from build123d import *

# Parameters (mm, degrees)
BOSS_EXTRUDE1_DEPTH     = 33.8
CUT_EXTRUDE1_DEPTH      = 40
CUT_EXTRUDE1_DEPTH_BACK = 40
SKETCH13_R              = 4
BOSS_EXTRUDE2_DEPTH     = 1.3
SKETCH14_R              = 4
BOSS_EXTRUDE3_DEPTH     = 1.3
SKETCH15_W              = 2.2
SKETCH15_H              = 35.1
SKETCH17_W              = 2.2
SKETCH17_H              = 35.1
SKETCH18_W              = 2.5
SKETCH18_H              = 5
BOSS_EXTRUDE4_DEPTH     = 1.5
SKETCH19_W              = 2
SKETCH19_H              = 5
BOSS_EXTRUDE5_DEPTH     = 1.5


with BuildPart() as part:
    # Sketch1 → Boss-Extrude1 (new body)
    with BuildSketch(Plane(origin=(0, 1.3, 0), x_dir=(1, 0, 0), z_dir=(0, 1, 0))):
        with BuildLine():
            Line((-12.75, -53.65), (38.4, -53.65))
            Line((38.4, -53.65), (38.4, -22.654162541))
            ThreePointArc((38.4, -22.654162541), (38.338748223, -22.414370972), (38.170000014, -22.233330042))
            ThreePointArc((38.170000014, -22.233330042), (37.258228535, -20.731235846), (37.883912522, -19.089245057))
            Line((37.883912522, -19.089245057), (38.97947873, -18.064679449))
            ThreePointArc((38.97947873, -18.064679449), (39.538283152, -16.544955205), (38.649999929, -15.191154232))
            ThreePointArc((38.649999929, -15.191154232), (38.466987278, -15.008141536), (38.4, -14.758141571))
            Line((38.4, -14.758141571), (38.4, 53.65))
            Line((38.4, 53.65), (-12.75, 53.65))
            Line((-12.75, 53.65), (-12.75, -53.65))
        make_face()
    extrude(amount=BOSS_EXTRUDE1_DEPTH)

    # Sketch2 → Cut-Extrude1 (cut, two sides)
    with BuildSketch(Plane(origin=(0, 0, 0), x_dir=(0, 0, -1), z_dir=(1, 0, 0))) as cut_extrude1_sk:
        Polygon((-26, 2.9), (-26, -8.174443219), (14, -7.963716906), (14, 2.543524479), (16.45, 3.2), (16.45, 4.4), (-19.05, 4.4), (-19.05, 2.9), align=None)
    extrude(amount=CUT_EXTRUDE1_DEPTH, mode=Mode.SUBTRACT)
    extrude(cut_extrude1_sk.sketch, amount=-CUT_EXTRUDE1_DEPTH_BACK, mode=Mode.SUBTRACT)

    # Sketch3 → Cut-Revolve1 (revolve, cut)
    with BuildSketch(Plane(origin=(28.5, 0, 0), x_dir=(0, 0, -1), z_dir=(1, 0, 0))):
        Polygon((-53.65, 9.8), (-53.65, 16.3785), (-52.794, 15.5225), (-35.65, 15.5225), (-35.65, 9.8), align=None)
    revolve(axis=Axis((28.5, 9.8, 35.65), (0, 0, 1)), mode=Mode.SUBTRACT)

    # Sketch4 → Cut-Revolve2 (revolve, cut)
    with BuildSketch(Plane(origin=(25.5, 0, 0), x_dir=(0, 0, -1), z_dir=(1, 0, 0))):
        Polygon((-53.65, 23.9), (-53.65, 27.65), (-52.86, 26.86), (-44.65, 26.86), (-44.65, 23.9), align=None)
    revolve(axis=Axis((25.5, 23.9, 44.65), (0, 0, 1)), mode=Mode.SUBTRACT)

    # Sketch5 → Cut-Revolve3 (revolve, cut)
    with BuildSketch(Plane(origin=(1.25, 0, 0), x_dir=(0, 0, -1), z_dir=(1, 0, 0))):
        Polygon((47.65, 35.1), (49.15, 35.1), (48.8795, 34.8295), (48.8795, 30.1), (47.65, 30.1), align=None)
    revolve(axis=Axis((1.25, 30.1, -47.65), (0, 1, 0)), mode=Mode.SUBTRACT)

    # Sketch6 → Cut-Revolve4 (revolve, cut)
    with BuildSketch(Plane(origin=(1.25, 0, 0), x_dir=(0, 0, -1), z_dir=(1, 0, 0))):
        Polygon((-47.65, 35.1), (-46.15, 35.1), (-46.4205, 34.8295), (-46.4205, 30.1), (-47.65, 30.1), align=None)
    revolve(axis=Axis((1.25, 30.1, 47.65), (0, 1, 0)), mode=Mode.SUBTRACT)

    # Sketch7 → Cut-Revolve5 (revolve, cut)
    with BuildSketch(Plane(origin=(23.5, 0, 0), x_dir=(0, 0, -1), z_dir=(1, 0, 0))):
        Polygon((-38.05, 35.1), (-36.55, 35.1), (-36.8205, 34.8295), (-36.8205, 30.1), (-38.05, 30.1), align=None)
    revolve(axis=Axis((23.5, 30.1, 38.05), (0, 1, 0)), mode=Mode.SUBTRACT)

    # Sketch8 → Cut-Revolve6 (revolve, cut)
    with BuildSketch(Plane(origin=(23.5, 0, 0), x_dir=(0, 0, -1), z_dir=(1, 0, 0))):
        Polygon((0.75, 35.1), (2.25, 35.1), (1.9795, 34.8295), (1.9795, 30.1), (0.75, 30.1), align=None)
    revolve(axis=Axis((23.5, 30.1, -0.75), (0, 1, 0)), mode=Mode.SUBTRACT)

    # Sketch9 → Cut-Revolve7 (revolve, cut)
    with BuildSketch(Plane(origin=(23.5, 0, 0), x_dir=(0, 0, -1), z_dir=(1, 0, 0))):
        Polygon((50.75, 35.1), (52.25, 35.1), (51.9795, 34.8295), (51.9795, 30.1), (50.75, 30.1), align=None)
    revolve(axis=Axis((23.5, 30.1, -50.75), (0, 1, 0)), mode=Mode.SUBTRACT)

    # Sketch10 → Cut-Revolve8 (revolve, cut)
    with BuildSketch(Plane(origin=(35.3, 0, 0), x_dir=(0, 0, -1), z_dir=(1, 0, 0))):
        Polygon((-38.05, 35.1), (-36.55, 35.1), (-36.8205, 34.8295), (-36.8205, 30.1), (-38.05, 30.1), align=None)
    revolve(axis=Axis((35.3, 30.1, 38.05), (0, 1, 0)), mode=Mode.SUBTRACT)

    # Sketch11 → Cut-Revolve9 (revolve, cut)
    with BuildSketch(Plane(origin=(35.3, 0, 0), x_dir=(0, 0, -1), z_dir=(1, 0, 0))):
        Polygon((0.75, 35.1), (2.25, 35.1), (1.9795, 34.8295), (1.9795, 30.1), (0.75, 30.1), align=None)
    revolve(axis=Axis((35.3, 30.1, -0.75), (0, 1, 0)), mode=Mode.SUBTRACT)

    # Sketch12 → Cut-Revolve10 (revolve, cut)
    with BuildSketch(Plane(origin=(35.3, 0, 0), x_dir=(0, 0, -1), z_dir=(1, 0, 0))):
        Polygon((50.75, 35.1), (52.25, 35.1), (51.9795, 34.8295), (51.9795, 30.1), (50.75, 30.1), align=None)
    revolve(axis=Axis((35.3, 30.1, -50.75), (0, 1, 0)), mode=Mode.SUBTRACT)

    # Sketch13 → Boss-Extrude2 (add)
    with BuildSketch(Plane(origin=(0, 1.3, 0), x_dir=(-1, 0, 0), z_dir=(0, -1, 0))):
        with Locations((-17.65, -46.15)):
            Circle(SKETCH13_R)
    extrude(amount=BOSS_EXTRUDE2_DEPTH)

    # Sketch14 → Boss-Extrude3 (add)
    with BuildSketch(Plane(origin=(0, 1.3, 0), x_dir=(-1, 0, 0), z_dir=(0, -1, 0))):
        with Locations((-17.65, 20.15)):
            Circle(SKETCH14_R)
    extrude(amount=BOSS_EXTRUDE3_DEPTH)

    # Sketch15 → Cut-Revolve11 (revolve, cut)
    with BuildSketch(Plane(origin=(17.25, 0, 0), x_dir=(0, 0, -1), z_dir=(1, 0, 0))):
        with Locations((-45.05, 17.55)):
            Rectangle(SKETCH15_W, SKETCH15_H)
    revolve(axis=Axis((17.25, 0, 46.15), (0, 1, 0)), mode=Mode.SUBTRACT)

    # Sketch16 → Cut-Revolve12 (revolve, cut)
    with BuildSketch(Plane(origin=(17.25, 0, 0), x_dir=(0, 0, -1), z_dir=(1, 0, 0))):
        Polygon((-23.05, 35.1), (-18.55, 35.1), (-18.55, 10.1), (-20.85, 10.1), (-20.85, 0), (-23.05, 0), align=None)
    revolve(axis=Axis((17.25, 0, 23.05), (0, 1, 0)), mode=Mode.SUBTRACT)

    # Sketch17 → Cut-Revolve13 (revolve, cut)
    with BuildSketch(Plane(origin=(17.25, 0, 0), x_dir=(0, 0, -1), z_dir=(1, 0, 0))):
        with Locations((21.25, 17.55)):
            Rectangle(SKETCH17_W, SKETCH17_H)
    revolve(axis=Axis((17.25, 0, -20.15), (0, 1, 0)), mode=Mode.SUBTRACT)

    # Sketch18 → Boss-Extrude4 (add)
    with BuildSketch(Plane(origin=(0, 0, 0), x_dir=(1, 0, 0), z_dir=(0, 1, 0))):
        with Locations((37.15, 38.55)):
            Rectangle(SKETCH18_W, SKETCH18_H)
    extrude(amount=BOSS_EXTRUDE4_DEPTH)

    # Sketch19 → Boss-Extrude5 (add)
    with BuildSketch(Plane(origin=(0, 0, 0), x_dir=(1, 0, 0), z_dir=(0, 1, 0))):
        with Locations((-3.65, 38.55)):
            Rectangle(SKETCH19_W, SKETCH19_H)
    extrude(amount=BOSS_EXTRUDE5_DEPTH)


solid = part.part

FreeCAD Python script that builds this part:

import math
import FreeCAD as App
import Part
import Sketcher

V = App.Vector
Q = App.Units.Quantity


def add_polygon(sketch, points):
    """Adds a closed chain of lines whose ends are joined by coincident constraints."""
    first, n = sketch.GeometryCount, len(points)
    for a, b in zip(points, points[1:] + points[:1]):
        sketch.addGeometry(Part.LineSegment(App.Vector(*a, 0), App.Vector(*b, 0)), False)
    for i in range(n):
        sketch.addConstraint(Sketcher.Constraint("Coincident", first + i, 2, first + (i + 1) % n, 1))

doc = App.newDocument("Part")
body = doc.addObject("PartDesign::Body", "Body")

sketch1 = body.newObject("Sketcher::SketchObject", "Sketch")
sketch1.AttachmentSupport = (doc.getObject("XZ_Plane"), [""])
sketch1.MapMode = "FlatFace"
sketch1.AttachmentOffset = App.Placement(V(0, 0, -1.3), App.Rotation())
sketch1.addGeometry(Part.LineSegment(V(-12.75, 53.65, 0), V(38.4, 53.65, 0)), False)
sketch1.addGeometry(Part.LineSegment(V(38.4, 53.65, 0), V(38.4, 22.65, 0)), False)
sketch1.addGeometry(Part.ArcOfCircle(Part.Circle(V(37.9, 22.65, 0), V(0, 0, 1), 0.5), math.radians(-57), math.radians(0)), False)
sketch1.addGeometry(Part.ArcOfCircle(Part.Circle(V(39.25, 20.55, 0), V(0, 0, 1), 2), math.radians(123), math.radians(227)), False)
sketch1.addGeometry(Part.LineSegment(V(37.88, 19.09, 0), V(38.98, 18.06, 0)), False)
sketch1.addGeometry(Part.ArcOfCircle(Part.Circle(V(37.75, 16.75, 0), V(0, 0, 1), 1.8), math.radians(-60), math.radians(47)), False)
sketch1.addGeometry(Part.ArcOfCircle(Part.Circle(V(38.9, 14.76, 0), V(0, 0, 1), 0.5), math.radians(120), math.radians(180)), False)
sketch1.addGeometry(Part.LineSegment(V(38.4, 14.76, 0), V(38.4, -53.65, 0)), False)
sketch1.addGeometry(Part.LineSegment(V(38.4, -53.65, 0), V(-12.75, -53.65, 0)), False)
sketch1.addGeometry(Part.LineSegment(V(-12.75, -53.65, 0), V(-12.75, 53.65, 0)), False)
sketch1.addConstraint(Sketcher.Constraint("Coincident", 0, 2, 1, 1))
sketch1.addConstraint(Sketcher.Constraint("Tangent", 1, 2, 2, 2))
sketch1.addConstraint(Sketcher.Constraint("Tangent", 2, 1, 3, 1))
sketch1.addConstraint(Sketcher.Constraint("Tangent", 3, 2, 4, 1))
sketch1.addConstraint(Sketcher.Constraint("Tangent", 4, 2, 5, 2))
sketch1.addConstraint(Sketcher.Constraint("Tangent", 5, 1, 6, 1))
sketch1.addConstraint(Sketcher.Constraint("Tangent", 6, 2, 7, 1))
sketch1.addConstraint(Sketcher.Constraint("Coincident", 7, 2, 8, 1))
sketch1.addConstraint(Sketcher.Constraint("Coincident", 8, 2, 9, 1))
sketch1.addConstraint(Sketcher.Constraint("Coincident", 9, 2, 0, 1))
sketch1.addConstraint(Sketcher.Constraint("Horizontal", 0))
sketch1.addConstraint(Sketcher.Constraint("Vertical", 1))
sketch1.addConstraint(Sketcher.Constraint("Vertical", 7))
sketch1.addConstraint(Sketcher.Constraint("Horizontal", 8))
sketch1.addConstraint(Sketcher.Constraint("Vertical", 9))
sketch1.addConstraint(Sketcher.Constraint("Equal", 2, 6))
sketch1.addConstraint(Sketcher.Constraint("Symmetric", 0, 2, 7, 2, -1))
sketch1.addConstraint(Sketcher.Constraint("Radius", 3, Q("2 mm")))
sketch1.addConstraint(Sketcher.Constraint("Radius", 2, Q("0.5 mm")))
sketch1.addConstraint(Sketcher.Constraint("Radius", 5, Q("1.8 mm")))
sketch1.addConstraint(Sketcher.Constraint("DistanceY", 9, 1, 9, 2, Q("107.3 mm")))
sketch1.addConstraint(Sketcher.Constraint("Distance", 4, Q("1.5 mm")))
sketch1.addConstraint(Sketcher.Constraint("DistanceX", 0, 1, 0, 2, Q("51.15 mm")))
sketch1.addConstraint(Sketcher.Constraint("DistanceX", -1, 1, 2, 3, Q("37.9 mm")))
sketch1.addConstraint(Sketcher.Constraint("DistanceX", 5, 3, 3, 3, Q("1.5 mm")))
sketch1.addConstraint(Sketcher.Constraint("DistanceY", 3, 3, 0, 2, Q("33.1 mm")))
sketch1.addConstraint(Sketcher.Constraint("DistanceX", 5, 3, 5, 1, Q("0.9 mm")))
pad1 = body.newObject("PartDesign::Pad", "Pad")
pad1.Profile = sketch1
pad1.Length = 33.8
pad1.Reversed = True

sketch2 = body.newObject("Sketcher::SketchObject", "Sketch001")
sketch2.AttachmentSupport = (doc.getObject("YZ_Plane"), [""])
sketch2.MapMode = "FlatFace"
add_polygon(sketch2, [(2.9, 26), (-8.2, 26), (-8, -14), (2.5, -14), (3.2, -16.4), (4.4, -16.4), (4.4, 19.1), (2.9, 19.1)])
sketch2.addConstraint(Sketcher.Constraint("Horizontal", 0))
sketch2.addConstraint(Sketcher.Constraint("Horizontal", 2))
sketch2.addConstraint(Sketcher.Constraint("Horizontal", 4))
sketch2.addConstraint(Sketcher.Constraint("Vertical", 5))
sketch2.addConstraint(Sketcher.Constraint("Horizontal", 6))
sketch2.addConstraint(Sketcher.Constraint("Vertical", 7))
sketch2.addConstraint(Sketcher.Constraint("Angle", 3, Q("-75 deg")))
sketch2.addConstraint(Sketcher.Constraint("DistanceX", 4, 1, 4, 2, Q("1.2 mm")))
sketch2.addConstraint(Sketcher.Constraint("DistanceX", 6, 2, 6, 1, Q("1.5 mm")))
sketch2.addConstraint(Sketcher.Constraint("DistanceY", 5, 1, 5, 2, Q("35.5 mm")))
sketch2.addConstraint(Sketcher.Constraint("DistanceY", -1, 1, 0, 2, Q("26 mm")))
sketch2.addConstraint(Sketcher.Constraint("DistanceY", 1, 2, -1, 1, Q("14 mm")))
sketch2.addConstraint(Sketcher.Constraint("DistanceY", 7, 1, 7, 2, Q("6.95 mm")))
sketch2.addConstraint(Sketcher.Constraint("DistanceX", -1, 1, 3, 2, Q("3.2 mm")))
sketch2.addConstraint(Sketcher.Constraint("DistanceX", 2, 1, 2, 2, Q("10.507241 mm")))
sketch2.addConstraint(Sketcher.Constraint("DistanceX", 0, 2, 0, 1, Q("11.074443 mm")))
pocket1 = body.newObject("PartDesign::Pocket", "Pocket")
pocket1.Profile = sketch2
pocket1.Type = "ThroughAll"
pocket1.Midplane = True

sketch3 = body.newObject("Sketcher::SketchObject", "Sketch002")
sketch3.AttachmentSupport = (doc.getObject("YZ_Plane"), [""])
sketch3.MapMode = "FlatFace"
sketch3.AttachmentOffset = App.Placement(V(0, 0, 28.5), App.Rotation())
add_polygon(sketch3, [(16.4, 53.6), (9.8, 53.6), (9.8, 35.6), (15.5, 35.6), (15.5, 52.8)])
sketch3.addGeometry(Part.LineSegment(V(9.8, 35.6, 0), V(9.8, 53.6, 0)), True)
sketch3.addConstraint(Sketcher.Constraint("Horizontal", 0))
sketch3.addConstraint(Sketcher.Constraint("Vertical", 1))
sketch3.addConstraint(Sketcher.Constraint("Horizontal", 2))
sketch3.addConstraint(Sketcher.Constraint("Vertical", 3))
sketch3.addConstraint(Sketcher.Constraint("Vertical", 5))
sketch3.addConstraint(Sketcher.Constraint("Coincident", 5, 1, 1, 2))
sketch3.addConstraint(Sketcher.Constraint("Horizontal", 4, 2, 5, 2))
sketch3.addConstraint(Sketcher.Constraint("DistanceY", 1, 2, 1, 1, Q("18 mm")))
sketch3.addConstraint(Sketcher.Constraint("Angle", 4, Q("45 deg")))
sketch3.addConstraint(Sketcher.Constraint("DistanceX", -1, 1, 0, 2, Q("9.8 mm")))
sketch3.addConstraint(Sketcher.Constraint("DistanceY", 3, 1, 3, 2, Q("17.144 mm")))
sketch3.addConstraint(Sketcher.Constraint("DistanceY", -1, 1, 0, 2, Q("53.65 mm")))
sketch3.addConstraint(Sketcher.Constraint("DistanceX", 0, 2, 0, 1, Q("6.5785 mm")))
groove = body.newObject("PartDesign::Groove", "Groove")
groove.Profile = sketch3
groove.ReferenceAxis = (sketch3, ["Axis0"])
groove.Angle = 360

sketch4 = body.newObject("Sketcher::SketchObject", "Sketch003")
sketch4.AttachmentSupport = (doc.getObject("YZ_Plane"), [""])
sketch4.MapMode = "FlatFace"
sketch4.AttachmentOffset = App.Placement(V(0, 0, 25.5), App.Rotation())
add_polygon(sketch4, [(27.6, 53.6), (23.9, 53.6), (23.9, 44.6), (26.9, 44.6), (26.9, 52.9)])
sketch4.addGeometry(Part.LineSegment(V(23.9, 44.6, 0), V(23.9, 53.6, 0)), True)
sketch4.addConstraint(Sketcher.Constraint("Horizontal", 0))
sketch4.addConstraint(Sketcher.Constraint("Vertical", 1))
sketch4.addConstraint(Sketcher.Constraint("Horizontal", 2))
sketch4.addConstraint(Sketcher.Constraint("Vertical", 3))
sketch4.addConstraint(Sketcher.Constraint("Vertical", 5))
sketch4.addConstraint(Sketcher.Constraint("Coincident", 5, 1, 1, 2))
sketch4.addConstraint(Sketcher.Constraint("Horizontal", 4, 2, 5, 2))
sketch4.addConstraint(Sketcher.Constraint("DistanceY", 1, 2, 1, 1, Q("9 mm")))
sketch4.addConstraint(Sketcher.Constraint("Angle", 4, Q("45 deg")))
sketch4.addConstraint(Sketcher.Constraint("DistanceX", 0, 2, 0, 1, Q("3.75 mm")))
sketch4.addConstraint(Sketcher.Constraint("DistanceX", 2, 1, 2, 2, Q("2.96 mm")))
sketch4.addConstraint(Sketcher.Constraint("DistanceX", -1, 1, 0, 2, Q("23.9 mm")))
sketch4.addConstraint(Sketcher.Constraint("DistanceY", -1, 1, 0, 2, Q("53.65 mm")))
groove2 = body.newObject("PartDesign::Groove", "Groove001")
groove2.Profile = sketch4
groove2.ReferenceAxis = (sketch4, ["Axis0"])
groove2.Angle = 360

sketch5 = body.newObject("Sketcher::SketchObject", "Sketch004")
sketch5.AttachmentSupport = (doc.getObject("YZ_Plane"), [""])
sketch5.MapMode = "FlatFace"
sketch5.AttachmentOffset = App.Placement(V(0, 0, 1.25), App.Rotation())
add_polygon(sketch5, [(35.1, -49.15), (35.1, -47.65), (30.1, -47.65), (30.1, -48.88), (34.83, -48.88)])
sketch5.addGeometry(Part.LineSegment(V(30.1, -47.65, 0), V(35.1, -47.65, 0)), True)
sketch5.addConstraint(Sketcher.Constraint("Vertical", 0))
sketch5.addConstraint(Sketcher.Constraint("Horizontal", 1))
sketch5.addConstraint(Sketcher.Constraint("Vertical", 2))
sketch5.addConstraint(Sketcher.Constraint("Horizontal", 3))
sketch5.addConstraint(Sketcher.Constraint("Horizontal", 5))
sketch5.addConstraint(Sketcher.Constraint("Coincident", 5, 1, 1, 2))
sketch5.addConstraint(Sketcher.Constraint("Vertical", 4, 2, 5, 2))
sketch5.addConstraint(Sketcher.Constraint("DistanceX", 1, 2, 1, 1, Q("5 mm")))
sketch5.addConstraint(Sketcher.Constraint("Angle", 4, Q("-45 deg")))
sketch5.addConstraint(Sketcher.Constraint("DistanceY", 0, 1, 0, 2, Q("1.5 mm")))
sketch5.addConstraint(Sketcher.Constraint("DistanceX", -1, 1, 0, 2, Q("35.1 mm")))
sketch5.addConstraint(Sketcher.Constraint("DistanceY", 0, 2, -1, 1, Q("47.65 mm")))
sketch5.addConstraint(Sketcher.Constraint("DistanceX", 3, 1, 3, 2, Q("4.7295 mm")))
groove3 = body.newObject("PartDesign::Groove", "Groove002")
groove3.Profile = sketch5
groove3.ReferenceAxis = (sketch5, ["Axis0"])
groove3.Angle = 360

sketch6 = body.newObject("Sketcher::SketchObject", "Sketch005")
sketch6.AttachmentSupport = (doc.getObject("YZ_Plane"), [""])
sketch6.MapMode = "FlatFace"
sketch6.AttachmentOffset = App.Placement(V(0, 0, 1.25), App.Rotation())
add_polygon(sketch6, [(35.1, 46.15), (35.1, 47.65), (30.1, 47.65), (30.1, 46.42), (34.83, 46.42)])
sketch6.addGeometry(Part.LineSegment(V(30.1, 47.65, 0), V(35.1, 47.65, 0)), True)
sketch6.addConstraint(Sketcher.Constraint("Vertical", 0))
sketch6.addConstraint(Sketcher.Constraint("Horizontal", 1))
sketch6.addConstraint(Sketcher.Constraint("Vertical", 2))
sketch6.addConstraint(Sketcher.Constraint("Horizontal", 3))
sketch6.addConstraint(Sketcher.Constraint("Horizontal", 5))
sketch6.addConstraint(Sketcher.Constraint("Coincident", 5, 1, 1, 2))
sketch6.addConstraint(Sketcher.Constraint("Vertical", 4, 2, 5, 2))
sketch6.addConstraint(Sketcher.Constraint("DistanceX", 1, 2, 1, 1, Q("5 mm")))
sketch6.addConstraint(Sketcher.Constraint("Angle", 4, Q("-45 deg")))
sketch6.addConstraint(Sketcher.Constraint("DistanceY", 0, 1, 0, 2, Q("1.5 mm")))
sketch6.addConstraint(Sketcher.Constraint("DistanceX", -1, 1, 0, 2, Q("35.1 mm")))
sketch6.addConstraint(Sketcher.Constraint("DistanceY", -1, 1, 0, 2, Q("47.65 mm")))
sketch6.addConstraint(Sketcher.Constraint("DistanceX", 3, 1, 3, 2, Q("4.7295 mm")))
groove4 = body.newObject("PartDesign::Groove", "Groove003")
groove4.Profile = sketch6
groove4.ReferenceAxis = (sketch6, ["Axis0"])
groove4.Angle = 360

sketch7 = body.newObject("Sketcher::SketchObject", "Sketch006")
sketch7.AttachmentSupport = (doc.getObject("YZ_Plane"), [""])
sketch7.MapMode = "FlatFace"
sketch7.AttachmentOffset = App.Placement(V(0, 0, 23.5), App.Rotation())
add_polygon(sketch7, [(35.1, 36.55), (35.1, 38.05), (30.1, 38.05), (30.1, 36.82), (34.83, 36.82)])
sketch7.addGeometry(Part.LineSegment(V(30.1, 38.05, 0), V(35.1, 38.05, 0)), True)
sketch7.addConstraint(Sketcher.Constraint("Vertical", 0))
sketch7.addConstraint(Sketcher.Constraint("Horizontal", 1))
sketch7.addConstraint(Sketcher.Constraint("Vertical", 2))
sketch7.addConstraint(Sketcher.Constraint("Horizontal", 3))
sketch7.addConstraint(Sketcher.Constraint("Horizontal", 5))
sketch7.addConstraint(Sketcher.Constraint("Coincident", 5, 1, 1, 2))
sketch7.addConstraint(Sketcher.Constraint("Vertical", 4, 2, 5, 2))
sketch7.addConstraint(Sketcher.Constraint("DistanceX", 1, 2, 1, 1, Q("5 mm")))
sketch7.addConstraint(Sketcher.Constraint("Angle", 4, Q("-45 deg")))
sketch7.addConstraint(Sketcher.Constraint("DistanceY", 0, 1, 0, 2, Q("1.5 mm")))
sketch7.addConstraint(Sketcher.Constraint("DistanceX", -1, 1, 0, 2, Q("35.1 mm")))
sketch7.addConstraint(Sketcher.Constraint("DistanceY", -1, 1, 0, 2, Q("38.05 mm")))
sketch7.addConstraint(Sketcher.Constraint("DistanceX", 3, 1, 3, 2, Q("4.7295 mm")))
groove5 = body.newObject("PartDesign::Groove", "Groove004")
groove5.Profile = sketch7
groove5.ReferenceAxis = (sketch7, ["Axis0"])
groove5.Angle = 360

sketch8 = body.newObject("Sketcher::SketchObject", "Sketch007")
sketch8.AttachmentSupport = (doc.getObject("YZ_Plane"), [""])
sketch8.MapMode = "FlatFace"
sketch8.AttachmentOffset = App.Placement(V(0, 0, 23.5), App.Rotation())
add_polygon(sketch8, [(35.1, -2.25), (35.1, -0.75), (30.1, -0.75), (30.1, -1.98), (34.83, -1.98)])
sketch8.addGeometry(Part.LineSegment(V(30.1, -0.75, 0), V(35.1, -0.75, 0)), True)
sketch8.addConstraint(Sketcher.Constraint("Vertical", 0))
sketch8.addConstraint(Sketcher.Constraint("Horizontal", 1))
sketch8.addConstraint(Sketcher.Constraint("Vertical", 2))
sketch8.addConstraint(Sketcher.Constraint("Horizontal", 3))
sketch8.addConstraint(Sketcher.Constraint("Horizontal", 5))
sketch8.addConstraint(Sketcher.Constraint("Coincident", 5, 1, 1, 2))
sketch8.addConstraint(Sketcher.Constraint("Vertical", 4, 2, 5, 2))
sketch8.addConstraint(Sketcher.Constraint("DistanceX", 1, 2, 1, 1, Q("5 mm")))
sketch8.addConstraint(Sketcher.Constraint("Angle", 4, Q("-45 deg")))
sketch8.addConstraint(Sketcher.Constraint("DistanceY", 0, 1, 0, 2, Q("1.5 mm")))
sketch8.addConstraint(Sketcher.Constraint("DistanceX", -1, 1, 0, 2, Q("35.1 mm")))
sketch8.addConstraint(Sketcher.Constraint("DistanceY", 0, 2, -1, 1, Q("0.75 mm")))
sketch8.addConstraint(Sketcher.Constraint("DistanceX", 3, 1, 3, 2, Q("4.7295 mm")))
groove6 = body.newObject("PartDesign::Groove", "Groove005")
groove6.Profile = sketch8
groove6.ReferenceAxis = (sketch8, ["Axis0"])
groove6.Angle = 360

sketch9 = body.newObject("Sketcher::SketchObject", "Sketch008")
sketch9.AttachmentSupport = (doc.getObject("YZ_Plane"), [""])
sketch9.MapMode = "FlatFace"
sketch9.AttachmentOffset = App.Placement(V(0, 0, 23.5), App.Rotation())
add_polygon(sketch9, [(35.1, -52.25), (35.1, -50.75), (30.1, -50.75), (30.1, -51.98), (34.83, -51.98)])
sketch9.addGeometry(Part.LineSegment(V(30.1, -50.75, 0), V(35.1, -50.75, 0)), True)
sketch9.addConstraint(Sketcher.Constraint("Vertical", 0))
sketch9.addConstraint(Sketcher.Constraint("Horizontal", 1))
sketch9.addConstraint(Sketcher.Constraint("Vertical", 2))
sketch9.addConstraint(Sketcher.Constraint("Horizontal", 3))
sketch9.addConstraint(Sketcher.Constraint("Horizontal", 5))
sketch9.addConstraint(Sketcher.Constraint("Coincident", 5, 1, 1, 2))
sketch9.addConstraint(Sketcher.Constraint("Vertical", 4, 2, 5, 2))
sketch9.addConstraint(Sketcher.Constraint("DistanceX", 1, 2, 1, 1, Q("5 mm")))
sketch9.addConstraint(Sketcher.Constraint("Angle", 4, Q("-45 deg")))
sketch9.addConstraint(Sketcher.Constraint("DistanceY", 0, 1, 0, 2, Q("1.5 mm")))
sketch9.addConstraint(Sketcher.Constraint("DistanceX", -1, 1, 0, 2, Q("35.1 mm")))
sketch9.addConstraint(Sketcher.Constraint("DistanceY", 0, 2, -1, 1, Q("50.75 mm")))
sketch9.addConstraint(Sketcher.Constraint("DistanceX", 3, 1, 3, 2, Q("4.7295 mm")))
groove7 = body.newObject("PartDesign::Groove", "Groove006")
groove7.Profile = sketch9
groove7.ReferenceAxis = (sketch9, ["Axis0"])
groove7.Angle = 360

sketch10 = body.newObject("Sketcher::SketchObject", "Sketch009")
sketch10.AttachmentSupport = (doc.getObject("YZ_Plane"), [""])
sketch10.MapMode = "FlatFace"
sketch10.AttachmentOffset = App.Placement(V(0, 0, 35.3), App.Rotation())
add_polygon(sketch10, [(35.1, 36.55), (35.1, 38.05), (30.1, 38.05), (30.1, 36.82), (34.83, 36.82)])
sketch10.addGeometry(Part.LineSegment(V(30.1, 38.05, 0), V(35.1, 38.05, 0)), True)
sketch10.addConstraint(Sketcher.Constraint("Vertical", 0))
sketch10.addConstraint(Sketcher.Constraint("Horizontal", 1))
sketch10.addConstraint(Sketcher.Constraint("Vertical", 2))
sketch10.addConstraint(Sketcher.Constraint("Horizontal", 3))
sketch10.addConstraint(Sketcher.Constraint("Horizontal", 5))
sketch10.addConstraint(Sketcher.Constraint("Coincident", 5, 1, 1, 2))
sketch10.addConstraint(Sketcher.Constraint("Vertical", 4, 2, 5, 2))
sketch10.addConstraint(Sketcher.Constraint("DistanceX", 1, 2, 1, 1, Q("5 mm")))
sketch10.addConstraint(Sketcher.Constraint("Angle", 4, Q("-45 deg")))
sketch10.addConstraint(Sketcher.Constraint("DistanceY", 0, 1, 0, 2, Q("1.5 mm")))
sketch10.addConstraint(Sketcher.Constraint("DistanceX", -1, 1, 0, 2, Q("35.1 mm")))
sketch10.addConstraint(Sketcher.Constraint("DistanceY", -1, 1, 0, 2, Q("38.05 mm")))
sketch10.addConstraint(Sketcher.Constraint("DistanceX", 3, 1, 3, 2, Q("4.7295 mm")))
groove8 = body.newObject("PartDesign::Groove", "Groove007")
groove8.Profile = sketch10
groove8.ReferenceAxis = (sketch10, ["Axis0"])
groove8.Angle = 360

sketch11 = body.newObject("Sketcher::SketchObject", "Sketch010")
sketch11.AttachmentSupport = (doc.getObject("YZ_Plane"), [""])
sketch11.MapMode = "FlatFace"
sketch11.AttachmentOffset = App.Placement(V(0, 0, 35.3), App.Rotation())
add_polygon(sketch11, [(35.1, -2.25), (35.1, -0.75), (30.1, -0.75), (30.1, -1.98), (34.83, -1.98)])
sketch11.addGeometry(Part.LineSegment(V(30.1, -0.75, 0), V(35.1, -0.75, 0)), True)
sketch11.addConstraint(Sketcher.Constraint("Vertical", 0))
sketch11.addConstraint(Sketcher.Constraint("Horizontal", 1))
sketch11.addConstraint(Sketcher.Constraint("Vertical", 2))
sketch11.addConstraint(Sketcher.Constraint("Horizontal", 3))
sketch11.addConstraint(Sketcher.Constraint("Horizontal", 5))
sketch11.addConstraint(Sketcher.Constraint("Coincident", 5, 1, 1, 2))
sketch11.addConstraint(Sketcher.Constraint("Vertical", 4, 2, 5, 2))
sketch11.addConstraint(Sketcher.Constraint("DistanceX", 1, 2, 1, 1, Q("5 mm")))
sketch11.addConstraint(Sketcher.Constraint("Angle", 4, Q("-45 deg")))
sketch11.addConstraint(Sketcher.Constraint("DistanceY", 0, 1, 0, 2, Q("1.5 mm")))
sketch11.addConstraint(Sketcher.Constraint("DistanceX", -1, 1, 0, 2, Q("35.1 mm")))
sketch11.addConstraint(Sketcher.Constraint("DistanceY", 0, 2, -1, 1, Q("0.75 mm")))
sketch11.addConstraint(Sketcher.Constraint("DistanceX", 3, 1, 3, 2, Q("4.7295 mm")))
groove9 = body.newObject("PartDesign::Groove", "Groove008")
groove9.Profile = sketch11
groove9.ReferenceAxis = (sketch11, ["Axis0"])
groove9.Angle = 360

sketch12 = body.newObject("Sketcher::SketchObject", "Sketch011")
sketch12.AttachmentSupport = (doc.getObject("YZ_Plane"), [""])
sketch12.MapMode = "FlatFace"
sketch12.AttachmentOffset = App.Placement(V(0, 0, 35.3), App.Rotation())
add_polygon(sketch12, [(35.1, -52.25), (35.1, -50.75), (30.1, -50.75), (30.1, -51.98), (34.83, -51.98)])
sketch12.addGeometry(Part.LineSegment(V(30.1, -50.75, 0), V(35.1, -50.75, 0)), True)
sketch12.addConstraint(Sketcher.Constraint("Vertical", 0))
sketch12.addConstraint(Sketcher.Constraint("Horizontal", 1))
sketch12.addConstraint(Sketcher.Constraint("Vertical", 2))
sketch12.addConstraint(Sketcher.Constraint("Horizontal", 3))
sketch12.addConstraint(Sketcher.Constraint("Horizontal", 5))
sketch12.addConstraint(Sketcher.Constraint("Coincident", 5, 1, 1, 2))
sketch12.addConstraint(Sketcher.Constraint("Vertical", 4, 2, 5, 2))
sketch12.addConstraint(Sketcher.Constraint("DistanceX", 1, 2, 1, 1, Q("5 mm")))
sketch12.addConstraint(Sketcher.Constraint("Angle", 4, Q("-45 deg")))
sketch12.addConstraint(Sketcher.Constraint("DistanceY", 0, 1, 0, 2, Q("1.5 mm")))
sketch12.addConstraint(Sketcher.Constraint("DistanceX", -1, 1, 0, 2, Q("35.1 mm")))
sketch12.addConstraint(Sketcher.Constraint("DistanceY", 0, 2, -1, 1, Q("50.75 mm")))
sketch12.addConstraint(Sketcher.Constraint("DistanceX", 3, 1, 3, 2, Q("4.7295 mm")))
groove10 = body.newObject("PartDesign::Groove", "Groove009")
groove10.Profile = sketch12
groove10.ReferenceAxis = (sketch12, ["Axis0"])
groove10.Angle = 360

sketch13 = body.newObject("Sketcher::SketchObject", "Sketch012")
sketch13.AttachmentSupport = (doc.getObject("XZ_Plane"), [""])
sketch13.MapMode = "FlatFace"
sketch13.AttachmentOffset = App.Placement(V(0, 0, -1.3), App.Rotation())
sketch13.addGeometry(Part.Circle(V(17.6, 46.1, 0), V(0, 0, 1), 4), False)
sketch13.addConstraint(Sketcher.Constraint("Diameter", 0, Q("8 mm")))
sketch13.addConstraint(Sketcher.Constraint("DistanceX", -1, 1, 0, 3, Q("17.65 mm")))
sketch13.addConstraint(Sketcher.Constraint("DistanceY", -1, 1, 0, 3, Q("46.15 mm")))
pad2 = body.newObject("PartDesign::Pad", "Pad001")
pad2.Profile = sketch13
pad2.Length = 1.3

sketch14 = body.newObject("Sketcher::SketchObject", "Sketch013")
sketch14.AttachmentSupport = (doc.getObject("XZ_Plane"), [""])
sketch14.MapMode = "FlatFace"
sketch14.AttachmentOffset = App.Placement(V(0, 0, -1.3), App.Rotation())
sketch14.addGeometry(Part.Circle(V(17.6, -20.1, 0), V(0, 0, 1), 4), False)
sketch14.addConstraint(Sketcher.Constraint("Diameter", 0, Q("8 mm")))
sketch14.addConstraint(Sketcher.Constraint("DistanceX", -1, 1, 0, 3, Q("17.65 mm")))
sketch14.addConstraint(Sketcher.Constraint("DistanceY", 0, 3, -1, 1, Q("20.15 mm")))
pad3 = body.newObject("PartDesign::Pad", "Pad002")
pad3.Profile = sketch14
pad3.Length = 1.3

sketch15 = body.newObject("Sketcher::SketchObject", "Sketch014")
sketch15.AttachmentSupport = (doc.getObject("YZ_Plane"), [""])
sketch15.MapMode = "FlatFace"
sketch15.AttachmentOffset = App.Placement(V(0, 0, 17.25), App.Rotation())
add_polygon(sketch15, [(35.1, 46.1), (0, 46.1), (0, 44), (35.1, 44)])
sketch15.addGeometry(Part.LineSegment(V(0, 46.1, 0), V(35.1, 46.1, 0)), True)
sketch15.addConstraint(Sketcher.Constraint("Horizontal", 0))
sketch15.addConstraint(Sketcher.Constraint("Vertical", 1))
sketch15.addConstraint(Sketcher.Constraint("Horizontal", 2))
sketch15.addConstraint(Sketcher.Constraint("Vertical", 3))
sketch15.addConstraint(Sketcher.Constraint("Horizontal", 4))
sketch15.addConstraint(Sketcher.Constraint("Coincident", 4, 1, 0, 2))
sketch15.addConstraint(Sketcher.Constraint("PointOnObject", 0, 2, -2))
sketch15.addConstraint(Sketcher.Constraint("Vertical", 2, 2, 4, 2))
sketch15.addConstraint(Sketcher.Constraint("DistanceX", 0, 2, 0, 1, Q("35.1 mm")))
sketch15.addConstraint(Sketcher.Constraint("DistanceY", 1, 2, 1, 1, Q("2.2 mm")))
sketch15.addConstraint(Sketcher.Constraint("DistanceY", -1, 1, 0, 2, Q("46.15 mm")))
groove11 = body.newObject("PartDesign::Groove", "Groove010")
groove11.Profile = sketch15
groove11.ReferenceAxis = (sketch15, ["Axis0"])
groove11.Angle = 360

sketch16 = body.newObject("Sketcher::SketchObject", "Sketch015")
sketch16.AttachmentSupport = (doc.getObject("YZ_Plane"), [""])
sketch16.MapMode = "FlatFace"
sketch16.AttachmentOffset = App.Placement(V(0, 0, 17.25), App.Rotation())
add_polygon(sketch16, [(35.1, 18.6), (35.1, 23.1), (0, 23.1), (0, 20.9), (10.1, 20.9), (10.1, 18.6)])
sketch16.addGeometry(Part.LineSegment(V(0, 23.1, 0), V(35.1, 23.1, 0)), True)
sketch16.addConstraint(Sketcher.Constraint("Vertical", 0))
sketch16.addConstraint(Sketcher.Constraint("Horizontal", 1))
sketch16.addConstraint(Sketcher.Constraint("Vertical", 2))
sketch16.addConstraint(Sketcher.Constraint("Horizontal", 3))
sketch16.addConstraint(Sketcher.Constraint("Vertical", 4))
sketch16.addConstraint(Sketcher.Constraint("Horizontal", 5))
sketch16.addConstraint(Sketcher.Constraint("Horizontal", 6))
sketch16.addConstraint(Sketcher.Constraint("Coincident", 6, 1, 1, 2))
sketch16.addConstraint(Sketcher.Constraint("PointOnObject", 1, 2, -2))
sketch16.addConstraint(Sketcher.Constraint("Vertical", 5, 2, 6, 2))
sketch16.addConstraint(Sketcher.Constraint("DistanceX", 5, 1, 5, 2, Q("25 mm")))
sketch16.addConstraint(Sketcher.Constraint("DistanceX", 1, 2, 1, 1, Q("35.1 mm")))
sketch16.addConstraint(Sketcher.Constraint("DistanceY", 0, 1, 0, 2, Q("4.5 mm")))
sketch16.addConstraint(Sketcher.Constraint("DistanceY", 2, 2, 2, 1, Q("2.2 mm")))
sketch16.addConstraint(Sketcher.Constraint("DistanceY", -1, 1, 0, 2, Q("23.05 mm")))
groove12 = body.newObject("PartDesign::Groove", "Groove011")
groove12.Profile = sketch16
groove12.ReferenceAxis = (sketch16, ["Axis0"])
groove12.Angle = 360

sketch17 = body.newObject("Sketcher::SketchObject", "Sketch016")
sketch17.AttachmentSupport = (doc.getObject("YZ_Plane"), [""])
sketch17.MapMode = "FlatFace"
sketch17.AttachmentOffset = App.Placement(V(0, 0, 17.25), App.Rotation())
add_polygon(sketch17, [(35.1, -20.1), (0, -20.1), (0, -22.4), (35.1, -22.4)])
sketch17.addGeometry(Part.LineSegment(V(0, -20.1, 0), V(35.1, -20.1, 0)), True)
sketch17.addConstraint(Sketcher.Constraint("Horizontal", 0))
sketch17.addConstraint(Sketcher.Constraint("Vertical", 1))
sketch17.addConstraint(Sketcher.Constraint("Horizontal", 2))
sketch17.addConstraint(Sketcher.Constraint("Vertical", 3))
sketch17.addConstraint(Sketcher.Constraint("Horizontal", 4))
sketch17.addConstraint(Sketcher.Constraint("Coincident", 4, 1, 0, 2))
sketch17.addConstraint(Sketcher.Constraint("PointOnObject", 0, 2, -2))
sketch17.addConstraint(Sketcher.Constraint("Vertical", 2, 2, 4, 2))
sketch17.addConstraint(Sketcher.Constraint("DistanceX", 0, 2, 0, 1, Q("35.1 mm")))
sketch17.addConstraint(Sketcher.Constraint("DistanceY", 1, 2, 1, 1, Q("2.2 mm")))
sketch17.addConstraint(Sketcher.Constraint("DistanceY", 0, 2, -1, 1, Q("20.15 mm")))
groove13 = body.newObject("PartDesign::Groove", "Groove012")
groove13.Profile = sketch17
groove13.ReferenceAxis = (sketch17, ["Axis0"])
groove13.Angle = 360

sketch18 = body.newObject("Sketcher::SketchObject", "Sketch017")
sketch18.AttachmentSupport = (doc.getObject("XZ_Plane"), [""])
sketch18.MapMode = "FlatFace"
add_polygon(sketch18, [(35.9, -41), (35.9, -36), (38.4, -36), (38.4, -41)])
sketch18.addConstraint(Sketcher.Constraint("Vertical", 0))
sketch18.addConstraint(Sketcher.Constraint("Horizontal", 1))
sketch18.addConstraint(Sketcher.Constraint("Vertical", 2))
sketch18.addConstraint(Sketcher.Constraint("Horizontal", 3))
sketch18.addConstraint(Sketcher.Constraint("DistanceY", 0, 1, 0, 2, Q("5 mm")))
sketch18.addConstraint(Sketcher.Constraint("DistanceX", 1, 1, 1, 2, Q("2.5 mm")))
sketch18.addConstraint(Sketcher.Constraint("DistanceX", -1, 1, 0, 2, Q("35.9 mm")))
sketch18.addConstraint(Sketcher.Constraint("DistanceY", 0, 2, -1, 1, Q("36.05 mm")))
pad4 = body.newObject("PartDesign::Pad", "Pad003")
pad4.Profile = sketch18
pad4.Length = 1.5
pad4.Reversed = True

sketch19 = body.newObject("Sketcher::SketchObject", "Sketch018")
sketch19.AttachmentSupport = (doc.getObject("XZ_Plane"), [""])
sketch19.MapMode = "FlatFace"
add_polygon(sketch19, [(-4.7, -41), (-4.7, -36), (-2.6, -36), (-2.6, -41)])
sketch19.addConstraint(Sketcher.Constraint("Vertical", 0))
sketch19.addConstraint(Sketcher.Constraint("Horizontal", 1))
sketch19.addConstraint(Sketcher.Constraint("Vertical", 2))
sketch19.addConstraint(Sketcher.Constraint("Horizontal", 3))
sketch19.addConstraint(Sketcher.Constraint("DistanceX", 1, 1, 1, 2, Q("2 mm")))
sketch19.addConstraint(Sketcher.Constraint("DistanceY", 0, 1, 0, 2, Q("5 mm")))
sketch19.addConstraint(Sketcher.Constraint("DistanceX", 0, 2, -1, 1, Q("4.65 mm")))
sketch19.addConstraint(Sketcher.Constraint("DistanceY", 0, 2, -1, 1, Q("36.05 mm")))
pad5 = body.newObject("PartDesign::Pad", "Pad004")
pad5.Profile = sketch19
pad5.Length = 1.5
pad5.Reversed = True

doc.recompute()
